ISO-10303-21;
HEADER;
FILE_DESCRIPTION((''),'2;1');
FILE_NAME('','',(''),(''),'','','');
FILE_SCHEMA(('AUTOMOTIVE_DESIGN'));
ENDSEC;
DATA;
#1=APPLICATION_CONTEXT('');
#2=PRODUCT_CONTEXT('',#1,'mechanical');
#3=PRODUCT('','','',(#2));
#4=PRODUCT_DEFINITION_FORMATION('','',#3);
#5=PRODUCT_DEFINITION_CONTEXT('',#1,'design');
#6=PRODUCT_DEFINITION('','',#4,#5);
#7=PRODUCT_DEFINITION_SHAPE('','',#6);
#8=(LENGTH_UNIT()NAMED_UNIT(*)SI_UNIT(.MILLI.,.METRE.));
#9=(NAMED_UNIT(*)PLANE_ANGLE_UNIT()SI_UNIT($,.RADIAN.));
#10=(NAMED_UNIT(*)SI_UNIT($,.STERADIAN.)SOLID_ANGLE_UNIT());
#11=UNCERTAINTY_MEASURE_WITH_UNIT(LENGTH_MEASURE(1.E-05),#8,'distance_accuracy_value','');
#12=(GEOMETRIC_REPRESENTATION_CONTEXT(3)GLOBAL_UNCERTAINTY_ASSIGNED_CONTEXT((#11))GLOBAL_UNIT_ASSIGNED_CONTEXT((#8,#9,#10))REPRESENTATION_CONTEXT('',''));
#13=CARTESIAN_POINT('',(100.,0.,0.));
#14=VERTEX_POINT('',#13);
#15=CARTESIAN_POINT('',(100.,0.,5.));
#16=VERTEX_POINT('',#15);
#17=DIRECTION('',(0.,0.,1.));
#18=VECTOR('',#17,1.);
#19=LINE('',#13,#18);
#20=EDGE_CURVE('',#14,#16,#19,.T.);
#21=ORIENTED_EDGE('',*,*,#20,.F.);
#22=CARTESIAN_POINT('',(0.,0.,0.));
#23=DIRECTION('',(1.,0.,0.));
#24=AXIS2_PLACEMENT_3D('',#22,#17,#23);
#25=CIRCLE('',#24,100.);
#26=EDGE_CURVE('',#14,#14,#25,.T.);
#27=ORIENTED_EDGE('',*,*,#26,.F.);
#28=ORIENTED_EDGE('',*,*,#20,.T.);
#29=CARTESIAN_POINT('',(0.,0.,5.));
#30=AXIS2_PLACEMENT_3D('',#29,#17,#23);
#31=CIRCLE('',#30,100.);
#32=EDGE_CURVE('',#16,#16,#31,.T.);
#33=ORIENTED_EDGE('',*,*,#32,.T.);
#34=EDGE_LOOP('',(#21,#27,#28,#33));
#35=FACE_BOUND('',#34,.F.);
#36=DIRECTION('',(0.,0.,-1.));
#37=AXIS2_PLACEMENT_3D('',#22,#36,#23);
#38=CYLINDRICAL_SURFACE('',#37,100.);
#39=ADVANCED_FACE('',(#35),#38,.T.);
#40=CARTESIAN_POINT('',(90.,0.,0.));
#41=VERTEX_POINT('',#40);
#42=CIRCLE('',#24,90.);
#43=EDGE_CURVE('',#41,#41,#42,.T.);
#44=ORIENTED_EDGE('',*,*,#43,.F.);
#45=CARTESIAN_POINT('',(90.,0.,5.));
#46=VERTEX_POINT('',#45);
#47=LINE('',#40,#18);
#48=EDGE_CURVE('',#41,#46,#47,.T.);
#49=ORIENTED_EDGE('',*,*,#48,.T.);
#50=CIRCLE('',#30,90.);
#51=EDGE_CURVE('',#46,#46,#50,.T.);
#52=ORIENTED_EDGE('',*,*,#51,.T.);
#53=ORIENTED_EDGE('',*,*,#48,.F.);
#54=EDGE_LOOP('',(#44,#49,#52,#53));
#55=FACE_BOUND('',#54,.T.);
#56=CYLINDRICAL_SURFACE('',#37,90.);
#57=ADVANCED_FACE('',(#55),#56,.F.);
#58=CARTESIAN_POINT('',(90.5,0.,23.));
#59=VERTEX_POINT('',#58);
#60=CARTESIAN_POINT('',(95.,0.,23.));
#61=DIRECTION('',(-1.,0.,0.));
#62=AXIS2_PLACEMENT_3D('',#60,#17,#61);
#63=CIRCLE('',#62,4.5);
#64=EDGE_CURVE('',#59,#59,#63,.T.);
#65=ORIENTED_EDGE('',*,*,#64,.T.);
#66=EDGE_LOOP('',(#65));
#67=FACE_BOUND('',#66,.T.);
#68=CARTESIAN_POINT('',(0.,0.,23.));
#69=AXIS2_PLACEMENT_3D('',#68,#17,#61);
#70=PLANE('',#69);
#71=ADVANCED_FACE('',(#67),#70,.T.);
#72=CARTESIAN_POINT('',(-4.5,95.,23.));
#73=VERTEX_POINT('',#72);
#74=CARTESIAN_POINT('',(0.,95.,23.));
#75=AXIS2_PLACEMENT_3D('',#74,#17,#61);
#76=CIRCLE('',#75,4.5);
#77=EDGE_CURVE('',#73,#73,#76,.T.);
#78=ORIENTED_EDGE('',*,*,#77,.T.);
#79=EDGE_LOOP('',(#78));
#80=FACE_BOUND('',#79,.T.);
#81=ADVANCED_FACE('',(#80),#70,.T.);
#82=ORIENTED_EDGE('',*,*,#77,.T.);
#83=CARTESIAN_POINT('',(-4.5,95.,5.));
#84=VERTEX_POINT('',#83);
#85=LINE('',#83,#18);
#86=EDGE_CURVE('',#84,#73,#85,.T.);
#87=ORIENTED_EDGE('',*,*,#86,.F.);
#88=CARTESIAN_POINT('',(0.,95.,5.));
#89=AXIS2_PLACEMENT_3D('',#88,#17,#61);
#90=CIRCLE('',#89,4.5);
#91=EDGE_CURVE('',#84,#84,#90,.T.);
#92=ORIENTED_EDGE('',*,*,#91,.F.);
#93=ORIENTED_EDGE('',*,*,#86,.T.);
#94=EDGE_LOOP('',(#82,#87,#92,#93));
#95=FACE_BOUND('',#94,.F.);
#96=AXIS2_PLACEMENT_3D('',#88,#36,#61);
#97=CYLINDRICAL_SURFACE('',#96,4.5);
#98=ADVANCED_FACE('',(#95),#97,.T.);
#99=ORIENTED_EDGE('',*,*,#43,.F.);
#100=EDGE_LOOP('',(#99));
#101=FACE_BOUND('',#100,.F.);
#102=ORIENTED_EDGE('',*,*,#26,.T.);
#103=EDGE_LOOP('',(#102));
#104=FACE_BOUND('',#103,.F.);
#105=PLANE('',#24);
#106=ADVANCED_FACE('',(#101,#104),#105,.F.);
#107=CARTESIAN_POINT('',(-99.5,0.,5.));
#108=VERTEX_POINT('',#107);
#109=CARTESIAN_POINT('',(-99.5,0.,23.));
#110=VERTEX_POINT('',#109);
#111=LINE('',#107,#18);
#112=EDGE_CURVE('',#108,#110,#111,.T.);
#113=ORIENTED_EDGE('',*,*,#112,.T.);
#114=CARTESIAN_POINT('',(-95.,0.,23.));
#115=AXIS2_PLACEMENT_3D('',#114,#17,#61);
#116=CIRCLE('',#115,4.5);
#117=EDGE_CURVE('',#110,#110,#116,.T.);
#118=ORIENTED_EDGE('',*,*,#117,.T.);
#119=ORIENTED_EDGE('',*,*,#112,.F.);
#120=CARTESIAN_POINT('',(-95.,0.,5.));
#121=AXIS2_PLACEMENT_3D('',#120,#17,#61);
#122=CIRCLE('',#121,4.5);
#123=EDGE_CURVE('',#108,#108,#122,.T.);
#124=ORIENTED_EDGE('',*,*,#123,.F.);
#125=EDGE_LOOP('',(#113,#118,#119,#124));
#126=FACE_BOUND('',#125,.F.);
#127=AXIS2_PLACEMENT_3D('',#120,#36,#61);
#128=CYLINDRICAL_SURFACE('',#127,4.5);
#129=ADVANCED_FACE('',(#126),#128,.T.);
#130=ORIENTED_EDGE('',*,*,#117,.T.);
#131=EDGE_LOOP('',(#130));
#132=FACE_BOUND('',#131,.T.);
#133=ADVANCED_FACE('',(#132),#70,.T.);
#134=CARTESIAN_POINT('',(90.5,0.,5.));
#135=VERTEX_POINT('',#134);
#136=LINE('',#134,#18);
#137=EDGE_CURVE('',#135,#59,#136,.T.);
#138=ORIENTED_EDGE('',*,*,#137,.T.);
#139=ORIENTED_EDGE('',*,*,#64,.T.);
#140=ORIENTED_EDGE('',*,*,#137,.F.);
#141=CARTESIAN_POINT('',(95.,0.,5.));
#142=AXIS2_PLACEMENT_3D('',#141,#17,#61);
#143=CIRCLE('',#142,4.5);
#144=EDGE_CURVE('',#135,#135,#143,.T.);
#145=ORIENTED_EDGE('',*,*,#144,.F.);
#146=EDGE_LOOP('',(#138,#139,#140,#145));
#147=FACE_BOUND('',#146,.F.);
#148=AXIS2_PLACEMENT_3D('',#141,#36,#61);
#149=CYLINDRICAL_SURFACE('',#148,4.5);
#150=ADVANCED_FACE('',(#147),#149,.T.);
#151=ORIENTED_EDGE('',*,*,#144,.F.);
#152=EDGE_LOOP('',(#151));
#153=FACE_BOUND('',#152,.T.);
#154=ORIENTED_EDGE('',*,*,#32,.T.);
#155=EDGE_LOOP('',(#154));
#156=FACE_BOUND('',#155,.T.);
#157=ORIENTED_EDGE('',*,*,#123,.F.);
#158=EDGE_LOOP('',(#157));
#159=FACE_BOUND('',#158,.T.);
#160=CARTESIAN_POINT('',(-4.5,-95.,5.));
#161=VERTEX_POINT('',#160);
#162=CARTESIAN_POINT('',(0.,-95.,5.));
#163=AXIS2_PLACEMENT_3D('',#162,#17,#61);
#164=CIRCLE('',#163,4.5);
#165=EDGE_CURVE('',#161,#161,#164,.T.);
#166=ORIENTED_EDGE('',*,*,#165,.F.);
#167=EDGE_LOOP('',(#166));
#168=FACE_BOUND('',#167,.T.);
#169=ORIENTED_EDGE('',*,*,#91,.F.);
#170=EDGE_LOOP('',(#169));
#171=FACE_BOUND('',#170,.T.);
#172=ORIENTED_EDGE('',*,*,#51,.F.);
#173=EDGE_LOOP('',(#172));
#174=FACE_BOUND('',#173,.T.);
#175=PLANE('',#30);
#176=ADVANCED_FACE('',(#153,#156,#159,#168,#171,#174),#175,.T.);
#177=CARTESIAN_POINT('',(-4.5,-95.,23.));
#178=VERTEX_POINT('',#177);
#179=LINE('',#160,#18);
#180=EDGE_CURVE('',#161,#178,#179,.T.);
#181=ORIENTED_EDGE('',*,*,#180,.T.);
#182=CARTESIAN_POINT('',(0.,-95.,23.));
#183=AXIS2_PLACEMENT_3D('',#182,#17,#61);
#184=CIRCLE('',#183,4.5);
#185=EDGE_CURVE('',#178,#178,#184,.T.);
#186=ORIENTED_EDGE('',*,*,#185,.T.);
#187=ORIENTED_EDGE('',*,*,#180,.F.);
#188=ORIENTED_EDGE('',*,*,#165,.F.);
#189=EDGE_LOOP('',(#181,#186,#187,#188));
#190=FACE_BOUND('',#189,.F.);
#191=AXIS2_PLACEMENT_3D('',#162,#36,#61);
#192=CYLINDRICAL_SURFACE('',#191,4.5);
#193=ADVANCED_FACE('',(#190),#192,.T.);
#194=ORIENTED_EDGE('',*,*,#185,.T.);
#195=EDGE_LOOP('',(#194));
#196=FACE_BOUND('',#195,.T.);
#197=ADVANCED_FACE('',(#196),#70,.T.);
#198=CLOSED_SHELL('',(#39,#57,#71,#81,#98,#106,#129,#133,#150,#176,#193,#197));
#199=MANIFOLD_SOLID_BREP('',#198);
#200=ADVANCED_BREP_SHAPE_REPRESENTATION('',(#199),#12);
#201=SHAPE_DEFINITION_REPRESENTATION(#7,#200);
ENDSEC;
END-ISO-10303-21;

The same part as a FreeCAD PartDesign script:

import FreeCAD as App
import Part
import Sketcher
Q = App.Units.Quantity

doc = App.newDocument("Part")
body = doc.addObject("PartDesign::Body", "Body")

# Sketch on XY plane
sketch1 = doc.addObject("Sketcher::SketchObject", "Sketch")
body.addObject(sketch1)
sketch1.AttachmentSupport = (doc.XY_Plane, [""])
sketch1.MapMode = "FlatFace"
sketch1.addGeometry([
    Part.Circle(App.Vector(0, 0, 0), App.Vector(0, 0, 1), 100),
    Part.Circle(App.Vector(0, 0, 0), App.Vector(0, 0, 1), 90),
], False)
sketch1.addConstraint([
    Sketcher.Constraint("Coincident", 0, 3, -1, 1),
    Sketcher.Constraint("Coincident", 1, 3, -1, 1),
    Sketcher.Constraint("Diameter", 0, Q("200 mm")),
    Sketcher.Constraint("Diameter", 1, Q("180 mm")),
])
pad1 = doc.addObject("PartDesign::Pad", "Pad")
body.addObject(pad1)
pad1.Profile = sketch1
pad1.Length = 5

# Sketch on XY plane
sketch2 = doc.addObject("Sketcher::SketchObject", "Sketch001")
body.addObject(sketch2)
sketch2.AttachmentSupport = (doc.XY_Plane, [""])
sketch2.MapMode = "FlatFace"
sketch2.AttachmentOffset = App.Placement(App.Vector(0, 0, 5), App.Rotation())
sketch2.addGeometry([
    Part.Circle(App.Vector(-95, 0, 0), App.Vector(0, 0, 1), 4.5),
    Part.Circle(App.Vector(0, 95, 0), App.Vector(0, 0, 1), 4.5),
    Part.Circle(App.Vector(95, 0, 0), App.Vector(0, 0, 1), 4.5),
    Part.Circle(App.Vector(0, -95, 0), App.Vector(0, 0, 1), 4.5),
], False)
sketch2.addConstraint([
    Sketcher.Constraint("Equal", 0, 1),
    Sketcher.Constraint("Equal", 1, 2),
    Sketcher.Constraint("Equal", 2, 3),
    Sketcher.Constraint("Symmetric", 0, 3, 2, 3, -1, 1),
    Sketcher.Constraint("Symmetric", 1, 3, 3, 3, -1, 1),
    Sketcher.Constraint("PointOnObject", 0, 3, -1),
    Sketcher.Constraint("PointOnObject", 1, 3, -2),
    Sketcher.Constraint("Diameter", 0, Q("9 mm")),
    Sketcher.Constraint("DistanceX", 0, 3, -1, 1, Q("95 mm")),
    Sketcher.Constraint("DistanceY", -1, 1, 1, 3, Q("95 mm")),
])
pad2 = doc.addObject("PartDesign::Pad", "Pad001")
body.addObject(pad2)
pad2.Profile = sketch2
pad2.Length = 18

doc.recompute()
